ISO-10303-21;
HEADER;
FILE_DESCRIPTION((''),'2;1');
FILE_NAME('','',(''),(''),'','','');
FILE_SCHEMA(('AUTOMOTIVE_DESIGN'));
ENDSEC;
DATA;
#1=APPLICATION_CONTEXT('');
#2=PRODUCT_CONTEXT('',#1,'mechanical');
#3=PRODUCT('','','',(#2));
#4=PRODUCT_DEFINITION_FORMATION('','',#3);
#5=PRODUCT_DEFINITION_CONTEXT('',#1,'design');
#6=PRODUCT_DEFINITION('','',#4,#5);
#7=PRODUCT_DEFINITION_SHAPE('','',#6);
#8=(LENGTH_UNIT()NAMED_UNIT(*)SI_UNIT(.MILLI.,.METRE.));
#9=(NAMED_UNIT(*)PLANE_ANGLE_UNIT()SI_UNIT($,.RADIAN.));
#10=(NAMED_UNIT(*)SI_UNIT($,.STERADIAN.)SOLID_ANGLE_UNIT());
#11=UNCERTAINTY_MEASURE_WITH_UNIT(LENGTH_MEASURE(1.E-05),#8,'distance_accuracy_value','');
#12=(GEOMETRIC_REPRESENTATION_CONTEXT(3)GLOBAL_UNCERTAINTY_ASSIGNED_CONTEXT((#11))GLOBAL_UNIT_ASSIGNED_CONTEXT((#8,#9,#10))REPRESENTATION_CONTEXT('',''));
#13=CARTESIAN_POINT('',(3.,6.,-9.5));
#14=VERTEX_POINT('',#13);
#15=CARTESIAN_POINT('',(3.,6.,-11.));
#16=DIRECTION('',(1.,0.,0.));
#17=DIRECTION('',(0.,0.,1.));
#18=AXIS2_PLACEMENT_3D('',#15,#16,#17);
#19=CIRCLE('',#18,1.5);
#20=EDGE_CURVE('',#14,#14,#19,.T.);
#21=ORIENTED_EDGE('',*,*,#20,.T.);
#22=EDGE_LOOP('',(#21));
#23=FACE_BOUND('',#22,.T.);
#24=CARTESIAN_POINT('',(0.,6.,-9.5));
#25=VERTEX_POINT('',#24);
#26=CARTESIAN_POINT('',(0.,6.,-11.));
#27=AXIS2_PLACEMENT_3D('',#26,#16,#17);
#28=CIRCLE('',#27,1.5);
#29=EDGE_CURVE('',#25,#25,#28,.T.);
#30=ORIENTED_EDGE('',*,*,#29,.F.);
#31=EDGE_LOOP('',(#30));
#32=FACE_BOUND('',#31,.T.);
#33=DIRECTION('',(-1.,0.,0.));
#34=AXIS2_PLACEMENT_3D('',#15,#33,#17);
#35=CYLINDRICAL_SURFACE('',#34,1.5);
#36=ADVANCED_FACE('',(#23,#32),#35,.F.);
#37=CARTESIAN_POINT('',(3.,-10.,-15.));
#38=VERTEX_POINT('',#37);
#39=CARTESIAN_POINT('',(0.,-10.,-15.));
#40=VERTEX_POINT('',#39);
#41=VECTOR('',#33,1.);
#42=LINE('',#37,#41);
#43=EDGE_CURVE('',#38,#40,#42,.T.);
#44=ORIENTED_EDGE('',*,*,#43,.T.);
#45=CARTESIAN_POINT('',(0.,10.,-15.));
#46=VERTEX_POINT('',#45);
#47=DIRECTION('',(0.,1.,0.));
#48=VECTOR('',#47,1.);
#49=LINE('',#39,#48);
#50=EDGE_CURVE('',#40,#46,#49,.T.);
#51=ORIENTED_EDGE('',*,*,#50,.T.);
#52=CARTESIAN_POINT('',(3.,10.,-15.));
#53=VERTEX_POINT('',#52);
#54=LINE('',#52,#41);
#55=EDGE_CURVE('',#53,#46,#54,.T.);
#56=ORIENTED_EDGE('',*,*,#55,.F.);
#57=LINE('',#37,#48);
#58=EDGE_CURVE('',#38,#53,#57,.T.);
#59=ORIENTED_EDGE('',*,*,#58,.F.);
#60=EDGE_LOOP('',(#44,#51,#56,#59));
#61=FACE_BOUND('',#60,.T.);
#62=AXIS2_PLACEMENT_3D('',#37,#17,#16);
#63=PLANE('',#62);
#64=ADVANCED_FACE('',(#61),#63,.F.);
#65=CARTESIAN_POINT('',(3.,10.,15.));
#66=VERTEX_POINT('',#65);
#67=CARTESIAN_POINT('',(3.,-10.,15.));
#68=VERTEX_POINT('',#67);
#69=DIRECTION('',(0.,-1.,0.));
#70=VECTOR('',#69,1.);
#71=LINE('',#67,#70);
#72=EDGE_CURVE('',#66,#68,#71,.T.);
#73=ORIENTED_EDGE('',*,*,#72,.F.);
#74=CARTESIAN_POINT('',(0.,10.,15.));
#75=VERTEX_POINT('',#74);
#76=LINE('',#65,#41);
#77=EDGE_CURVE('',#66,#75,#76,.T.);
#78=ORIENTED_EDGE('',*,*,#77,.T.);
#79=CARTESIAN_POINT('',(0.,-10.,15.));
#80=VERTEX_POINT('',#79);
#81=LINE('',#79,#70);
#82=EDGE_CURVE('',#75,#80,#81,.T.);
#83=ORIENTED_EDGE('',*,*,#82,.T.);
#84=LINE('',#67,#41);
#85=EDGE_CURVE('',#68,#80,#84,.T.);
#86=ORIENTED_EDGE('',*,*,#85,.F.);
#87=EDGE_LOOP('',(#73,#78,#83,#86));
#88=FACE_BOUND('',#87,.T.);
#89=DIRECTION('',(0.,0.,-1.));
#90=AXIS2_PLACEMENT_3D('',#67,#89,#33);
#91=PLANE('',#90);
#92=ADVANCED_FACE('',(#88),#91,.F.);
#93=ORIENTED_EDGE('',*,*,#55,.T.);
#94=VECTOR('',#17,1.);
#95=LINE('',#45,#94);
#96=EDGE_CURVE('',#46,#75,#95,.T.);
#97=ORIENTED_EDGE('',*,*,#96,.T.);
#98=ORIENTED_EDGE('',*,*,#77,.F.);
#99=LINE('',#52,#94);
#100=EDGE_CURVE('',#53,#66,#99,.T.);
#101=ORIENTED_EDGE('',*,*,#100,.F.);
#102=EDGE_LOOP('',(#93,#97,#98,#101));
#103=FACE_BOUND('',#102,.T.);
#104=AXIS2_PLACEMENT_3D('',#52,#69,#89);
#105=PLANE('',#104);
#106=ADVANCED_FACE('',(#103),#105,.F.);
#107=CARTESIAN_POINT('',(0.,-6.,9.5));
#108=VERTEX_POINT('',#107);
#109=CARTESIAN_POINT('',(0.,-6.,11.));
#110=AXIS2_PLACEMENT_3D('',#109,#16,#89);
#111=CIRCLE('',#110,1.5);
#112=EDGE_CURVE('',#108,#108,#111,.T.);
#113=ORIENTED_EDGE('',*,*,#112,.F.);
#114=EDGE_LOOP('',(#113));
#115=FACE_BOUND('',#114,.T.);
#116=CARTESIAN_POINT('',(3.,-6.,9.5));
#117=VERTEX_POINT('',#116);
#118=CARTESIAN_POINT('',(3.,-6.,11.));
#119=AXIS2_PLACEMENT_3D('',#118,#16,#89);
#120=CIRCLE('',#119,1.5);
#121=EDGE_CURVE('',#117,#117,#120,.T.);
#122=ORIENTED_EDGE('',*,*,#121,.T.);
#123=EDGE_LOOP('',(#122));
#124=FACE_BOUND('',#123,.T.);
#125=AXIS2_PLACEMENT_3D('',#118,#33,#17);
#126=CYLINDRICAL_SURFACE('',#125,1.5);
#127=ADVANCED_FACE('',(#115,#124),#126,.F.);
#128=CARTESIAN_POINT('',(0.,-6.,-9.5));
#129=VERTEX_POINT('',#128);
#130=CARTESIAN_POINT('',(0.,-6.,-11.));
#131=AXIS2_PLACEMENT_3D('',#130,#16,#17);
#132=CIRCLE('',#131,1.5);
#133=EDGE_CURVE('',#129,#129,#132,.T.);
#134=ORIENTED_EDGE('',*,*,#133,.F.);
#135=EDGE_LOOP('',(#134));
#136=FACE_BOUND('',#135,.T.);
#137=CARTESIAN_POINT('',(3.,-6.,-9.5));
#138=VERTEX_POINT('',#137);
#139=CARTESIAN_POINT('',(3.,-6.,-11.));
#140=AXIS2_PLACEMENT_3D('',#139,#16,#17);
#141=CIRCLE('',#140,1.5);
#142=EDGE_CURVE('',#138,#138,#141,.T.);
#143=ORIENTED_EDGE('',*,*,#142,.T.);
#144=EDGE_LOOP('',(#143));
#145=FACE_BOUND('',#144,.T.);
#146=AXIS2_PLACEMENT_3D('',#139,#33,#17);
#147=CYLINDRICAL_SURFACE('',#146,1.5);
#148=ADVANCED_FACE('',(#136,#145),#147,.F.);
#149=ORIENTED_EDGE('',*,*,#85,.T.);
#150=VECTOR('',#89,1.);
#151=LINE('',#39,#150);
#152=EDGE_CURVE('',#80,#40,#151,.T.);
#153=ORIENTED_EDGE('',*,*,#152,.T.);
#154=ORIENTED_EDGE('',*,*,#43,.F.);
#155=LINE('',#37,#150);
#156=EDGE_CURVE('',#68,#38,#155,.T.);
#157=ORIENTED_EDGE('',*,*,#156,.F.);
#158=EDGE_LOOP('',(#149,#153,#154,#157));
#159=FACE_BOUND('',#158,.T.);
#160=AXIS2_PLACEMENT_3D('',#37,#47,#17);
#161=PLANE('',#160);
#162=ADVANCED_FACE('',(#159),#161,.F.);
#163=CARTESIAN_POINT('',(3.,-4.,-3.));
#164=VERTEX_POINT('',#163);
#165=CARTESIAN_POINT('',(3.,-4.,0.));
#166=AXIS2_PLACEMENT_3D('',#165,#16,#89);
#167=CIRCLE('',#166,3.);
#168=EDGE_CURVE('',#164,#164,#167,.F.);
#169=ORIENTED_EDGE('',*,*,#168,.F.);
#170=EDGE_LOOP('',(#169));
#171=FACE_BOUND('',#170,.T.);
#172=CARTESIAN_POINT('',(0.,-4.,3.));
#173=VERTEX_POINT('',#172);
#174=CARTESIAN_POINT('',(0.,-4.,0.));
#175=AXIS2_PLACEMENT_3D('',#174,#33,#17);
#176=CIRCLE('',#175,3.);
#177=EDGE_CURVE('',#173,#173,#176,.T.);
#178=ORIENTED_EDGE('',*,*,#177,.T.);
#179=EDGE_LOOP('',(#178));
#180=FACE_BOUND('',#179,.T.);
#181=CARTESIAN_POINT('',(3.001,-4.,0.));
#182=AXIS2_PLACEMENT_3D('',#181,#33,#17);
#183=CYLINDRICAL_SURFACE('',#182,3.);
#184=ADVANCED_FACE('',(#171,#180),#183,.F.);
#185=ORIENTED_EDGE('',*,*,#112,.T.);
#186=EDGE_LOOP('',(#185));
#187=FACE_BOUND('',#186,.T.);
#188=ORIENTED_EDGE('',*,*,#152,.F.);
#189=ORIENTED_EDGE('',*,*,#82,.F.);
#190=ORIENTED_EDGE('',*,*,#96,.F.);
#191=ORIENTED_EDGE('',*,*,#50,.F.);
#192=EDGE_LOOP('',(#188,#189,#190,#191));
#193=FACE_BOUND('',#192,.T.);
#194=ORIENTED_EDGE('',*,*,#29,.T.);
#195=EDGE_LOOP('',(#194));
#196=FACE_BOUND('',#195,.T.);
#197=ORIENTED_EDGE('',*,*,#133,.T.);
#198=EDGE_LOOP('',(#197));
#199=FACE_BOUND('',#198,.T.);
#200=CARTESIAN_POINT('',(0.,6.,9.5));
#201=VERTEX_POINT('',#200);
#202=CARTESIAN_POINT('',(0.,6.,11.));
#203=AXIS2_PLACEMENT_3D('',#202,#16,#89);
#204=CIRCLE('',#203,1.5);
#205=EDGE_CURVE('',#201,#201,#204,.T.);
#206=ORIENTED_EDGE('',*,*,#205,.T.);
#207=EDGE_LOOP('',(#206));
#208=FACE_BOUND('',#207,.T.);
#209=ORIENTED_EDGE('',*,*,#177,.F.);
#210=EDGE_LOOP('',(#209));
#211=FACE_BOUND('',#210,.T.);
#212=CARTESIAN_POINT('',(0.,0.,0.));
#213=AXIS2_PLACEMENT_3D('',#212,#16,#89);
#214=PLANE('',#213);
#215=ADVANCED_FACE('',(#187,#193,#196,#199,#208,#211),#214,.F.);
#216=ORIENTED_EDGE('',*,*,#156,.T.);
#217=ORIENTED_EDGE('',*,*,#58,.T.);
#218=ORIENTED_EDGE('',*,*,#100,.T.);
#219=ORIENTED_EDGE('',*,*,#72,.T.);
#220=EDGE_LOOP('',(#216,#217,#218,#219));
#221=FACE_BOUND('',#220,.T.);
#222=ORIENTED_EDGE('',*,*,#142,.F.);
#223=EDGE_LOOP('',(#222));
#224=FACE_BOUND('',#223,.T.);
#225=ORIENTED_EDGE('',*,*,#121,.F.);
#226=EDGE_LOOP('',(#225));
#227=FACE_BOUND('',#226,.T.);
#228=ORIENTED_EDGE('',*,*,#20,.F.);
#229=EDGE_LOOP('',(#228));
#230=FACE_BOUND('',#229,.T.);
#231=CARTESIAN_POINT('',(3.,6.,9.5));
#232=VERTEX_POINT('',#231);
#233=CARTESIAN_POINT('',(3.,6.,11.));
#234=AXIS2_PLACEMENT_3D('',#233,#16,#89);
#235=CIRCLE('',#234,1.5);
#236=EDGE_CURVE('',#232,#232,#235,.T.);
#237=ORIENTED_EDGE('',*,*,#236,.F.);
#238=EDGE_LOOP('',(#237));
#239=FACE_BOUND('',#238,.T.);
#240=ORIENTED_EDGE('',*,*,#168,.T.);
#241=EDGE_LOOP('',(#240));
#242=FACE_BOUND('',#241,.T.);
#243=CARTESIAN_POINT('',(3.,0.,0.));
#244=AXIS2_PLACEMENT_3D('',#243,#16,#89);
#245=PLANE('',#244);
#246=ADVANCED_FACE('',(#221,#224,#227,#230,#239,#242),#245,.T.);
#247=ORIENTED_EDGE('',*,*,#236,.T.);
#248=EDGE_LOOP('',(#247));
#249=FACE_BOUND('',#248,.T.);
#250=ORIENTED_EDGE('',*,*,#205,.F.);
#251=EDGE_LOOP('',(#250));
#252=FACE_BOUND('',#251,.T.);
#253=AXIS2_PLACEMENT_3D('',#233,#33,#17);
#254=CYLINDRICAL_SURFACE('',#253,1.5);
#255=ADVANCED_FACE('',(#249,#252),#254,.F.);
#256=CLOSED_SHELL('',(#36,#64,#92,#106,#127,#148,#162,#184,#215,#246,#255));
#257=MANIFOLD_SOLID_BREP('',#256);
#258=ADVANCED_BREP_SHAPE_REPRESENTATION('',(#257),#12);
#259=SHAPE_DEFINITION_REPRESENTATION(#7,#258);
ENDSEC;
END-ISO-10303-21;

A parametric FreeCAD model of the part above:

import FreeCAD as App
import Part
import Sketcher
from FreeCAD import Vector


def add_polygon(sketch, points):
    """Adds a closed chain of lines whose ends are joined by coincident constraints."""
    first, n = sketch.GeometryCount, len(points)
    for a, b in zip(points, points[1:] + points[:1]):
        sketch.addGeometry(Part.LineSegment(App.Vector(*a, 0), App.Vector(*b, 0)), False)
    for i in range(n):
        sketch.addConstraint(Sketcher.Constraint("Coincident", first + i, 2, first + (i + 1) % n, 1))

doc = App.newDocument("Part")
body = doc.addObject("PartDesign::Body", "Body")

# Sketch on YZ plane
sketch1 = doc.addObject("Sketcher::SketchObject", "Sketch")
body.addObject(sketch1)
sketch1.AttachmentSupport = (doc.YZ_Plane, [""])
sketch1.MapMode = "FlatFace"
add_polygon(sketch1, [(10, 15), (-10, 15), (-10, -15), (10, -15)])  # lines 0-3
sketch1.addGeometry(Part.Circle(Vector(-6, 11, 0), Vector(0, 0, 1), 1.5), False)  # 4
sketch1.addGeometry(Part.Circle(Vector(-6, -11, 0), Vector(0, 0, 1), 1.5), False)  # 5
sketch1.addGeometry(Part.Circle(Vector(6, 11, 0), Vector(0, 0, 1), 1.5), False)  # 6
sketch1.addGeometry(Part.Circle(Vector(6, -11, 0), Vector(0, 0, 1), 1.5), False)  # 7
sketch1.addConstraint([
    Sketcher.Constraint("Horizontal", 0),
    Sketcher.Constraint("Vertical", 1),
    Sketcher.Constraint("Horizontal", 2),
    Sketcher.Constraint("Vertical", 3),
    Sketcher.Constraint("Equal", 4, 5),
    Sketcher.Constraint("Equal", 5, 6),
    Sketcher.Constraint("Equal", 6, 7),
    Sketcher.Constraint("Symmetric", 5, 3, 6, 3, -1, 1),
    Sketcher.Constraint("Symmetric", 4, 3, 7, 3, -1, 1),
    Sketcher.Constraint("Symmetric", 0, 2, 2, 2, -1, 1),
    Sketcher.Constraint("Symmetric", 4, 3, 6, 3, -2),
    Sketcher.Constraint("Diameter", 4, 3.0),
    Sketcher.Constraint("DistanceX", 0, 2, 0, 1, 20.0),
    Sketcher.Constraint("DistanceY", 1, 2, 1, 1, 30.0),
    Sketcher.Constraint("DistanceX", 4, 3, -1, 1, 6.0),
    Sketcher.Constraint("DistanceY", -1, 1, 4, 3, 11.0),
])
pad1 = doc.addObject("PartDesign::Pad", "Pad")
body.addObject(pad1)
pad1.Profile = sketch1
pad1.Length = 3

# Sketch on YZ plane
sketch2 = doc.addObject("Sketcher::SketchObject", "Sketch001")
body.addObject(sketch2)
sketch2.AttachmentSupport = (doc.YZ_Plane, [""])
sketch2.MapMode = "FlatFace"
sketch2.addGeometry(Part.Circle(Vector(-4, 0, 0), Vector(0, 0, 1), 3), False)
sketch2.addConstraint([
    Sketcher.Constraint("PointOnObject", 0, 3, -1),
    Sketcher.Constraint("Diameter", 0, 6.0),
    Sketcher.Constraint("DistanceX", 0, 3, -1, 1, 4.0),
])
pocket1 = doc.addObject("PartDesign::Pocket", "Pocket")
body.addObject(pocket1)
pocket1.Profile = sketch2
pocket1.Type = "UpToFirst"
pocket1.Reversed = True

doc.recompute()
